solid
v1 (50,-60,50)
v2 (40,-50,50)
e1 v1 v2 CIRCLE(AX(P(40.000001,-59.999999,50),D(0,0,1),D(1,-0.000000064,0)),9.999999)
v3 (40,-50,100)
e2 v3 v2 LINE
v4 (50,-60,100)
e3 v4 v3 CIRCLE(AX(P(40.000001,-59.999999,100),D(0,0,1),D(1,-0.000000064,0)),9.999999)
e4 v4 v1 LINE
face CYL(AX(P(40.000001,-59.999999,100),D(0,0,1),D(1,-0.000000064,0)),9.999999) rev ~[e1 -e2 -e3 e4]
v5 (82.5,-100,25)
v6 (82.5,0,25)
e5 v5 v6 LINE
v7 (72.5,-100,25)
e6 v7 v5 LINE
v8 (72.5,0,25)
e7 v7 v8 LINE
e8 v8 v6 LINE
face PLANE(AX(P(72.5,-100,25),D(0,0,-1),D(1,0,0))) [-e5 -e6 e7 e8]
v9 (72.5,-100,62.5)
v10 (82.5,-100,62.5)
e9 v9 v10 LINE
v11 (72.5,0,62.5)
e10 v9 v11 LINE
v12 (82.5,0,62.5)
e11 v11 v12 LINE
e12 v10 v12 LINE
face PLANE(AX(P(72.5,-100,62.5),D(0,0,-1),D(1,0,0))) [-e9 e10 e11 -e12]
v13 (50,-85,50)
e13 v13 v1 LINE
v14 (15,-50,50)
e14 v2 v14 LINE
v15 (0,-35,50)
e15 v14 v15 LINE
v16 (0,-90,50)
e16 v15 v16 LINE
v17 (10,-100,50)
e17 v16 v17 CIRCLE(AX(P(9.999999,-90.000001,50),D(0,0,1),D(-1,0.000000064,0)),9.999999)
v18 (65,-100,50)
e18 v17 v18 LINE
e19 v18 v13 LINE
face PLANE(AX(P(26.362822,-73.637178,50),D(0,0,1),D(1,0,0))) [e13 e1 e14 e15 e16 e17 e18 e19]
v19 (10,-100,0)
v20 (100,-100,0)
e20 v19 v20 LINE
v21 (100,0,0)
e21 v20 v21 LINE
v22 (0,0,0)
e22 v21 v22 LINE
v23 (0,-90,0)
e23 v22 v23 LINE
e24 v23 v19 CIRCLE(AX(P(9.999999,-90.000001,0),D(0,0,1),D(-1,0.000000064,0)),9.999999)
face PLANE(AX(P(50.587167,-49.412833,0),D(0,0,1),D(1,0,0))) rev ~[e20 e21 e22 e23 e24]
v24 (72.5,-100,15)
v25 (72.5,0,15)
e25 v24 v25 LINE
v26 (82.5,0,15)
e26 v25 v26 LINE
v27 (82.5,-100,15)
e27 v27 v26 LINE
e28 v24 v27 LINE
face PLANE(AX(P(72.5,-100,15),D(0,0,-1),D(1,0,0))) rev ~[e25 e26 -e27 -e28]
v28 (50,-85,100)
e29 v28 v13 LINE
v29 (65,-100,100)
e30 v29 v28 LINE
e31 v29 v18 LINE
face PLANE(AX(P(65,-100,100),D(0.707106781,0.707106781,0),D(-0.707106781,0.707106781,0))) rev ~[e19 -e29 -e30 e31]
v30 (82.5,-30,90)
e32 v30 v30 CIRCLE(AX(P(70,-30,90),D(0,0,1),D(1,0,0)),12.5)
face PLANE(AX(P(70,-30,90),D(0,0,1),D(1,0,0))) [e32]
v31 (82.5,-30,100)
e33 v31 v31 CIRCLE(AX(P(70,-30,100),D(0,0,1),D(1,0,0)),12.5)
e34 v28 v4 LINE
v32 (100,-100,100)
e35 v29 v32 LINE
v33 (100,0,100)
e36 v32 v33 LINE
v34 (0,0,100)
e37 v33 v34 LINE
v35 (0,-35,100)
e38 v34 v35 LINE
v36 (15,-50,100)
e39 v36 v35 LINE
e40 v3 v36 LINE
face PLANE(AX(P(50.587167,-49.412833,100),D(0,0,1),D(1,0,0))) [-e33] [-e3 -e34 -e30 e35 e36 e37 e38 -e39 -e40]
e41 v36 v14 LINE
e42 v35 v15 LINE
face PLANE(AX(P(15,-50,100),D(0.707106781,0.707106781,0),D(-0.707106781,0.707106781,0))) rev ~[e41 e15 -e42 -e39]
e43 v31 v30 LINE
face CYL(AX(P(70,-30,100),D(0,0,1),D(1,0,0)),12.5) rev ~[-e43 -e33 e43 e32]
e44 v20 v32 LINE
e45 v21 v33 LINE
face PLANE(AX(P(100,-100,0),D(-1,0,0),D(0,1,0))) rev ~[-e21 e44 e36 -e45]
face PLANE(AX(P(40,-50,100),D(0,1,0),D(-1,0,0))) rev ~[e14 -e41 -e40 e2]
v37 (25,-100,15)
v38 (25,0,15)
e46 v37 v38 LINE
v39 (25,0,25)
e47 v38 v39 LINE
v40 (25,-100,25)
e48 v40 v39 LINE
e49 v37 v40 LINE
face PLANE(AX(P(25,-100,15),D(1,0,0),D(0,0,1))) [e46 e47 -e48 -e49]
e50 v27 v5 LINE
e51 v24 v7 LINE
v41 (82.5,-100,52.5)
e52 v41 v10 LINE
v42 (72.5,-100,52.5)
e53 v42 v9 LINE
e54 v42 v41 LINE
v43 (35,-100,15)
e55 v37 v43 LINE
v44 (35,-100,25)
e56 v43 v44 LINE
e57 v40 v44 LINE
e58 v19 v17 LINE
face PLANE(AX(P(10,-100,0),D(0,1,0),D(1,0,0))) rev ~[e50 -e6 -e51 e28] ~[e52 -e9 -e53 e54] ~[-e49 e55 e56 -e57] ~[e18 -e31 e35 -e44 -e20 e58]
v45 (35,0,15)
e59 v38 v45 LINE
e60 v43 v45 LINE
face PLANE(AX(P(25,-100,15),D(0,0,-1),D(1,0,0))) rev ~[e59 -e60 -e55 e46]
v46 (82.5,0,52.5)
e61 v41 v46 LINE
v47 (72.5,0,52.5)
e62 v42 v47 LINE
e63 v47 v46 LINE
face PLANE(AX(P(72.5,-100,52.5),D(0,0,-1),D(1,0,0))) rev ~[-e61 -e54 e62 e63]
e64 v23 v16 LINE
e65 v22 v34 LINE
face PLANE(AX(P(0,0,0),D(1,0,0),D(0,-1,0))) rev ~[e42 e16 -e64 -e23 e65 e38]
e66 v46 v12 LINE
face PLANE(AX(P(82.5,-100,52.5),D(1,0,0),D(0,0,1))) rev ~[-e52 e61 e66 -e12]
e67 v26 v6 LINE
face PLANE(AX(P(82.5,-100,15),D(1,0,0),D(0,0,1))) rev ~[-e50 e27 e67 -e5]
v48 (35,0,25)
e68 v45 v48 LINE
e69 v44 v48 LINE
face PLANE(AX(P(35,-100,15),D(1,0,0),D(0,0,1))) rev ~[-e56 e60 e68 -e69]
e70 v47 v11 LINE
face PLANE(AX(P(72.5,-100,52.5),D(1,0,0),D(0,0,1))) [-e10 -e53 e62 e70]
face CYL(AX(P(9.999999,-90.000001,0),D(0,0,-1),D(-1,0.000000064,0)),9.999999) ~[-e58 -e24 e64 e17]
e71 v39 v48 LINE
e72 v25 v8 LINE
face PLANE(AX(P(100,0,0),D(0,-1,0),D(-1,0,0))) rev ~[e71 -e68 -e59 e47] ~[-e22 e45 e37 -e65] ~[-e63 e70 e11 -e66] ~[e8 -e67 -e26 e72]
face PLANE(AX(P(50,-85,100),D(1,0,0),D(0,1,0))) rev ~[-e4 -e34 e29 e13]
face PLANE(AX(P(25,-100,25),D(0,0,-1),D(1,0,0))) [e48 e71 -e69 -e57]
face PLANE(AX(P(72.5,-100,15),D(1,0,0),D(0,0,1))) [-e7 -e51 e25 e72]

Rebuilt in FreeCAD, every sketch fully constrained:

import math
import FreeCAD as App
import Part
import Sketcher

doc = App.newDocument("Part")
params = doc.addObject("Spreadsheet::Sheet", "Params")
for row, (alias, value) in enumerate([
    ("sketch1_radius", "9.999999 mm"),
    ("sketch1_width", "100 mm"),
    ("pad1_length", "100 mm"),
    ("sketch2_radius", "9.999999 mm"),
    ("sketch2_width", "55 mm"),
    ("sketch2_width2", "25 mm"),
    ("pocket1_length", "50 mm"),
    ("sketch3_diameter", "25 mm"),
    ("pocket2_length", "10 mm"),
    ("sketch4_width", "10 mm"),
], start=1):
    params.set(f"A{row}", alias)
    params.set(f"B{row}", "=" + value)
    params.setAlias(f"B{row}", alias)

body = doc.addObject("PartDesign::Body", "Body")

# Sketch on XY plane
sketch1 = body.newObject("Sketcher::SketchObject", "Sketch")
sketch1.AttachmentSupport = (doc.getObject("XY_Plane"), [""])
sketch1.MapMode = "FlatFace"
sketch1.addGeometry(Part.LineSegment(App.Vector(100, 0, 0), App.Vector(0, 0, 0)), False)
sketch1.addGeometry(Part.LineSegment(App.Vector(0, 0, 0), App.Vector(0, -90, 0)), False)
sketch1.addGeometry(Part.ArcOfCircle(Part.Circle(App.Vector(10, -90, 0), App.Vector(0, 0, 1), 10), math.radians(180), math.radians(270)), False)
sketch1.addGeometry(Part.LineSegment(App.Vector(10, -100, 0), App.Vector(100, -100, 0)), False)
sketch1.addGeometry(Part.LineSegment(App.Vector(100, -100, 0), App.Vector(100, 0, 0)), False)
sketch1.addConstraint(Sketcher.Constraint("Coincident", 0, 2, 1, 1))
sketch1.addConstraint(Sketcher.Constraint("Tangent", 1, 2, 2, 1))
sketch1.addConstraint(Sketcher.Constraint("Tangent", 2, 2, 3, 1))
sketch1.addConstraint(Sketcher.Constraint("Coincident", 3, 2, 4, 1))
sketch1.addConstraint(Sketcher.Constraint("Coincident", 4, 2, 0, 1))
sketch1.addConstraint(Sketcher.Constraint("Horizontal", 0))
sketch1.addConstraint(Sketcher.Constraint("Vertical", 1))
sketch1.addConstraint(Sketcher.Constraint("Horizontal", 3))
sketch1.addConstraint(Sketcher.Constraint("Vertical", 4))
sketch1.addConstraint(Sketcher.Constraint("Coincident", 0, 2, -1, 1))
sketch1.addConstraint(Sketcher.Constraint("Equal", 3, 1))
sketch1.addConstraint(Sketcher.Constraint("Radius", 2, 9.999999))
sketch1.addConstraint(Sketcher.Constraint("DistanceX", 0, 2, 0, 1, 100.0))
sketch1.setExpression("Constraints[11]", "Params.sketch1_radius")
sketch1.setExpression("Constraints[12]", "Params.sketch1_width")
pad1 = body.newObject("PartDesign::Pad", "Pad")
pad1.Profile = sketch1
pad1.setExpression("Length", "Params.pad1_length")

# Sketch on XY plane
sketch2 = body.newObject("Sketcher::SketchObject", "Sketch001")
sketch2.AttachmentSupport = (doc.getObject("XY_Plane"), [""])
sketch2.MapMode = "FlatFace"
sketch2.AttachmentOffset = App.Placement(App.Vector(0, 0, 100), App.Rotation())
sketch2.addGeometry(Part.LineSegment(App.Vector(15, -50, 0), App.Vector(0, -35, 0)), False)
sketch2.addGeometry(Part.LineSegment(App.Vector(0, -35, 0), App.Vector(0, -90, 0)), False)
sketch2.addGeometry(Part.ArcOfCircle(Part.Circle(App.Vector(10, -90, 0), App.Vector(0, 0, 1), 10), math.radians(180), math.radians(270)), False)
sketch2.addGeometry(Part.LineSegment(App.Vector(10, -100, 0), App.Vector(65, -100, 0)), False)
sketch2.addGeometry(Part.LineSegment(App.Vector(65, -100, 0), App.Vector(50, -85, 0)), False)
sketch2.addGeometry(Part.LineSegment(App.Vector(50, -85, 0), App.Vector(50, -60, 0)), False)
sketch2.addGeometry(Part.ArcOfCircle(Part.Circle(App.Vector(40, -60, 0), App.Vector(0, 0, 1), 10), math.radians(0), math.radians(90)), False)
sketch2.addGeometry(Part.LineSegment(App.Vector(40, -50, 0), App.Vector(15, -50, 0)), False)
sketch2.addConstraint(Sketcher.Constraint("Coincident", 0, 2, 1, 1))
sketch2.addConstraint(Sketcher.Constraint("Tangent", 1, 2, 2, 1))
sketch2.addConstraint(Sketcher.Constraint("Tangent", 2, 2, 3, 1))
sketch2.addConstraint(Sketcher.Constraint("Coincident", 3, 2, 4, 1))
sketch2.addConstraint(Sketcher.Constraint("Coincident", 4, 2, 5, 1))
sketch2.addConstraint(Sketcher.Constraint("Tangent", 5, 2, 6, 1))
sketch2.addConstraint(Sketcher.Constraint("Tangent", 6, 2, 7, 1))
sketch2.addConstraint(Sketcher.Constraint("Coincident", 7, 2, 0, 1))
sketch2.addConstraint(Sketcher.Constraint("Vertical", 1))
sketch2.addConstraint(Sketcher.Constraint("Horizontal", 3))
sketch2.addConstraint(Sketcher.Constraint("Vertical", 5))
sketch2.addConstraint(Sketcher.Constraint("Horizontal", 7))
sketch2.addConstraint(Sketcher.Constraint("Equal", 2, 6))
sketch2.addConstraint(Sketcher.Constraint("PointOnObject", 0, 2, -2))
sketch2.addConstraint(Sketcher.Constraint("Parallel", 0, 4))
sketch2.addConstraint(Sketcher.Constraint("Equal", 3, 1))
sketch2.addConstraint(Sketcher.Constraint("Equal", 7, 5))
sketch2.addConstraint(Sketcher.Constraint("Equal", 0, 4))
sketch2.addConstraint(Sketcher.Constraint("Radius", 2, 9.999999))
sketch2.addConstraint(Sketcher.Constraint("DistanceX", 3, 1, 3, 2, 55.0))
sketch2.addConstraint(Sketcher.Constraint("DistanceX", 7, 2, 7, 1, 25.0))
sketch2.addConstraint(Sketcher.Constraint("DistanceY", 2, 3, -1, 1, 90.000001))
sketch2.setExpression("Constraints[18]", "Params.sketch2_radius")
sketch2.setExpression("Constraints[19]", "Params.sketch2_width")
sketch2.setExpression("Constraints[20]", "Params.sketch2_width2")
pocket1 = body.newObject("PartDesign::Pocket", "Pocket")
pocket1.Profile = sketch2
pocket1.setExpression("Length", "Params.pocket1_length")

# Sketch on XY plane
sketch3 = body.newObject("Sketcher::SketchObject", "Sketch002")
sketch3.AttachmentSupport = (doc.getObject("XY_Plane"), [""])
sketch3.MapMode = "FlatFace"
sketch3.AttachmentOffset = App.Placement(App.Vector(0, 0, 100), App.Rotation())
sketch3.addGeometry(Part.Circle(App.Vector(70, -30, 0), App.Vector(0, 0, 1), 12), False)
sketch3.addConstraint(Sketcher.Constraint("Diameter", 0, 25.0))
sketch3.addConstraint(Sketcher.Constraint("DistanceX", -1, 1, 0, 3, 70.0))
sketch3.addConstraint(Sketcher.Constraint("DistanceY", 0, 3, -1, 1, 30.0))
sketch3.setExpression("Constraints[0]", "Params.sketch3_diameter")
pocket2 = body.newObject("PartDesign::Pocket", "Pocket001")
pocket2.Profile = sketch3
pocket2.setExpression("Length", "Params.pocket2_length")

# Sketch on XZ plane
sketch4 = body.newObject("Sketcher::SketchObject", "Sketch003")
sketch4.AttachmentSupport = (doc.getObject("XZ_Plane"), [""])
sketch4.MapMode = "FlatFace"
sketch4.AttachmentOffset = App.Placement(App.Vector(0, 0, 100), App.Rotation())
sketch4.addGeometry(Part.LineSegment(App.Vector(25, 25, 0), App.Vector(25, 15, 0)), False)
sketch4.addGeometry(Part.LineSegment(App.Vector(25, 15, 0), App.Vector(35, 15, 0)), False)
sketch4.addGeometry(Part.LineSegment(App.Vector(35, 15, 0), App.Vector(35, 25, 0)), False)
sketch4.addGeometry(Part.LineSegment(App.Vector(35, 25, 0), App.Vector(25, 25, 0)), False)
sketch4.addGeometry(Part.LineSegment(App.Vector(72, 25, 0), App.Vector(72, 15, 0)), False)
sketch4.addGeometry(Part.LineSegment(App.Vector(72, 15, 0), App.Vector(82, 15, 0)), False)
sketch4.addGeometry(Part.LineSegment(App.Vector(82, 15, 0), App.Vector(82, 25, 0)), False)
sketch4.addGeometry(Part.LineSegment(App.Vector(82, 25, 0), App.Vector(72, 25, 0)), False)
sketch4.addGeometry(Part.LineSegment(App.Vector(72, 62, 0), App.Vector(72, 52, 0)), False)
sketch4.addGeometry(Part.LineSegment(App.Vector(72, 52, 0), App.Vector(82, 52, 0)), False)
sketch4.addGeometry(Part.LineSegment(App.Vector(82, 52, 0), App.Vector(82, 62, 0)), False)
sketch4.addGeometry(Part.LineSegment(App.Vector(82, 62, 0), App.Vector(72, 62, 0)), False)
sketch4.addConstraint(Sketcher.Constraint("Coincident", 0, 2, 1, 1))
sketch4.addConstraint(Sketcher.Constraint("Coincident", 1, 2, 2, 1))
sketch4.addConstraint(Sketcher.Constraint("Coincident", 2, 2, 3, 1))
sketch4.addConstraint(Sketcher.Constraint("Coincident", 3, 2, 0, 1))
sketch4.addConstraint(Sketcher.Constraint("Coincident", 4, 2, 5, 1))
sketch4.addConstraint(Sketcher.Constraint("Coincident", 5, 2, 6, 1))
sketch4.addConstraint(Sketcher.Constraint("Coincident", 6, 2, 7, 1))
sketch4.addConstraint(Sketcher.Constraint("Coincident", 7, 2, 4, 1))
sketch4.addConstraint(Sketcher.Constraint("Coincident", 8, 2, 9, 1))
sketch4.addConstraint(Sketcher.Constraint("Coincident", 9, 2, 10, 1))
sketch4.addConstraint(Sketcher.Constraint("Coincident", 10, 2, 11, 1))
sketch4.addConstraint(Sketcher.Constraint("Coincident", 11, 2, 8, 1))
sketch4.addConstraint(Sketcher.Constraint("Vertical", 0))
sketch4.addConstraint(Sketcher.Constraint("Horizontal", 1))
sketch4.addConstraint(Sketcher.Constraint("Vertical", 2))
sketch4.addConstraint(Sketcher.Constraint("Horizontal", 3))
sketch4.addConstraint(Sketcher.Constraint("Vertical", 4))
sketch4.addConstraint(Sketcher.Constraint("Horizontal", 5))
sketch4.addConstraint(Sketcher.Constraint("Vertical", 6))
sketch4.addConstraint(Sketcher.Constraint("Horizontal", 7))
sketch4.addConstraint(Sketcher.Constraint("Vertical", 8))
sketch4.addConstraint(Sketcher.Constraint("Horizontal", 9))
sketch4.addConstraint(Sketcher.Constraint("Vertical", 10))
sketch4.addConstraint(Sketcher.Constraint("Horizontal", 11))
sketch4.addConstraint(Sketcher.Constraint("Horizontal", 1, 2, 4, 2))
sketch4.addConstraint(Sketcher.Constraint("Horizontal", 3, 2, 6, 2))
sketch4.addConstraint(Sketcher.Constraint("Vertical", 7, 2, 8, 2))
sketch4.addConstraint(Sketcher.Constraint("Vertical", 6, 2, 9, 2))
sketch4.addConstraint(Sketcher.Constraint("Equal", 3, 5))
sketch4.addConstraint(Sketcher.Constraint("Equal", 11, 0))
sketch4.addConstraint(Sketcher.Constraint("Equal", 6, 8))
sketch4.addConstraint(Sketcher.Constraint("DistanceX", 1, 1, 1, 2, 10.0))
sketch4.addConstraint(Sketcher.Constraint("DistanceX", -1, 1, 0, 2, 25.0))
sketch4.addConstraint(Sketcher.Constraint("DistanceY", -1, 1, 0, 2, 15.0))
sketch4.addConstraint(Sketcher.Constraint("DistanceX", -1, 1, 4, 2, 72.5))
sketch4.addConstraint(Sketcher.Constraint("DistanceY", -1, 1, 8, 2, 52.5))
sketch4.setExpression("Constraints[31]", "Params.sketch4_width")
pocket3 = body.newObject("PartDesign::Pocket", "Pocket002")
pocket3.Profile = sketch4
pocket3.Type = "ThroughAll"

doc.recompute()
